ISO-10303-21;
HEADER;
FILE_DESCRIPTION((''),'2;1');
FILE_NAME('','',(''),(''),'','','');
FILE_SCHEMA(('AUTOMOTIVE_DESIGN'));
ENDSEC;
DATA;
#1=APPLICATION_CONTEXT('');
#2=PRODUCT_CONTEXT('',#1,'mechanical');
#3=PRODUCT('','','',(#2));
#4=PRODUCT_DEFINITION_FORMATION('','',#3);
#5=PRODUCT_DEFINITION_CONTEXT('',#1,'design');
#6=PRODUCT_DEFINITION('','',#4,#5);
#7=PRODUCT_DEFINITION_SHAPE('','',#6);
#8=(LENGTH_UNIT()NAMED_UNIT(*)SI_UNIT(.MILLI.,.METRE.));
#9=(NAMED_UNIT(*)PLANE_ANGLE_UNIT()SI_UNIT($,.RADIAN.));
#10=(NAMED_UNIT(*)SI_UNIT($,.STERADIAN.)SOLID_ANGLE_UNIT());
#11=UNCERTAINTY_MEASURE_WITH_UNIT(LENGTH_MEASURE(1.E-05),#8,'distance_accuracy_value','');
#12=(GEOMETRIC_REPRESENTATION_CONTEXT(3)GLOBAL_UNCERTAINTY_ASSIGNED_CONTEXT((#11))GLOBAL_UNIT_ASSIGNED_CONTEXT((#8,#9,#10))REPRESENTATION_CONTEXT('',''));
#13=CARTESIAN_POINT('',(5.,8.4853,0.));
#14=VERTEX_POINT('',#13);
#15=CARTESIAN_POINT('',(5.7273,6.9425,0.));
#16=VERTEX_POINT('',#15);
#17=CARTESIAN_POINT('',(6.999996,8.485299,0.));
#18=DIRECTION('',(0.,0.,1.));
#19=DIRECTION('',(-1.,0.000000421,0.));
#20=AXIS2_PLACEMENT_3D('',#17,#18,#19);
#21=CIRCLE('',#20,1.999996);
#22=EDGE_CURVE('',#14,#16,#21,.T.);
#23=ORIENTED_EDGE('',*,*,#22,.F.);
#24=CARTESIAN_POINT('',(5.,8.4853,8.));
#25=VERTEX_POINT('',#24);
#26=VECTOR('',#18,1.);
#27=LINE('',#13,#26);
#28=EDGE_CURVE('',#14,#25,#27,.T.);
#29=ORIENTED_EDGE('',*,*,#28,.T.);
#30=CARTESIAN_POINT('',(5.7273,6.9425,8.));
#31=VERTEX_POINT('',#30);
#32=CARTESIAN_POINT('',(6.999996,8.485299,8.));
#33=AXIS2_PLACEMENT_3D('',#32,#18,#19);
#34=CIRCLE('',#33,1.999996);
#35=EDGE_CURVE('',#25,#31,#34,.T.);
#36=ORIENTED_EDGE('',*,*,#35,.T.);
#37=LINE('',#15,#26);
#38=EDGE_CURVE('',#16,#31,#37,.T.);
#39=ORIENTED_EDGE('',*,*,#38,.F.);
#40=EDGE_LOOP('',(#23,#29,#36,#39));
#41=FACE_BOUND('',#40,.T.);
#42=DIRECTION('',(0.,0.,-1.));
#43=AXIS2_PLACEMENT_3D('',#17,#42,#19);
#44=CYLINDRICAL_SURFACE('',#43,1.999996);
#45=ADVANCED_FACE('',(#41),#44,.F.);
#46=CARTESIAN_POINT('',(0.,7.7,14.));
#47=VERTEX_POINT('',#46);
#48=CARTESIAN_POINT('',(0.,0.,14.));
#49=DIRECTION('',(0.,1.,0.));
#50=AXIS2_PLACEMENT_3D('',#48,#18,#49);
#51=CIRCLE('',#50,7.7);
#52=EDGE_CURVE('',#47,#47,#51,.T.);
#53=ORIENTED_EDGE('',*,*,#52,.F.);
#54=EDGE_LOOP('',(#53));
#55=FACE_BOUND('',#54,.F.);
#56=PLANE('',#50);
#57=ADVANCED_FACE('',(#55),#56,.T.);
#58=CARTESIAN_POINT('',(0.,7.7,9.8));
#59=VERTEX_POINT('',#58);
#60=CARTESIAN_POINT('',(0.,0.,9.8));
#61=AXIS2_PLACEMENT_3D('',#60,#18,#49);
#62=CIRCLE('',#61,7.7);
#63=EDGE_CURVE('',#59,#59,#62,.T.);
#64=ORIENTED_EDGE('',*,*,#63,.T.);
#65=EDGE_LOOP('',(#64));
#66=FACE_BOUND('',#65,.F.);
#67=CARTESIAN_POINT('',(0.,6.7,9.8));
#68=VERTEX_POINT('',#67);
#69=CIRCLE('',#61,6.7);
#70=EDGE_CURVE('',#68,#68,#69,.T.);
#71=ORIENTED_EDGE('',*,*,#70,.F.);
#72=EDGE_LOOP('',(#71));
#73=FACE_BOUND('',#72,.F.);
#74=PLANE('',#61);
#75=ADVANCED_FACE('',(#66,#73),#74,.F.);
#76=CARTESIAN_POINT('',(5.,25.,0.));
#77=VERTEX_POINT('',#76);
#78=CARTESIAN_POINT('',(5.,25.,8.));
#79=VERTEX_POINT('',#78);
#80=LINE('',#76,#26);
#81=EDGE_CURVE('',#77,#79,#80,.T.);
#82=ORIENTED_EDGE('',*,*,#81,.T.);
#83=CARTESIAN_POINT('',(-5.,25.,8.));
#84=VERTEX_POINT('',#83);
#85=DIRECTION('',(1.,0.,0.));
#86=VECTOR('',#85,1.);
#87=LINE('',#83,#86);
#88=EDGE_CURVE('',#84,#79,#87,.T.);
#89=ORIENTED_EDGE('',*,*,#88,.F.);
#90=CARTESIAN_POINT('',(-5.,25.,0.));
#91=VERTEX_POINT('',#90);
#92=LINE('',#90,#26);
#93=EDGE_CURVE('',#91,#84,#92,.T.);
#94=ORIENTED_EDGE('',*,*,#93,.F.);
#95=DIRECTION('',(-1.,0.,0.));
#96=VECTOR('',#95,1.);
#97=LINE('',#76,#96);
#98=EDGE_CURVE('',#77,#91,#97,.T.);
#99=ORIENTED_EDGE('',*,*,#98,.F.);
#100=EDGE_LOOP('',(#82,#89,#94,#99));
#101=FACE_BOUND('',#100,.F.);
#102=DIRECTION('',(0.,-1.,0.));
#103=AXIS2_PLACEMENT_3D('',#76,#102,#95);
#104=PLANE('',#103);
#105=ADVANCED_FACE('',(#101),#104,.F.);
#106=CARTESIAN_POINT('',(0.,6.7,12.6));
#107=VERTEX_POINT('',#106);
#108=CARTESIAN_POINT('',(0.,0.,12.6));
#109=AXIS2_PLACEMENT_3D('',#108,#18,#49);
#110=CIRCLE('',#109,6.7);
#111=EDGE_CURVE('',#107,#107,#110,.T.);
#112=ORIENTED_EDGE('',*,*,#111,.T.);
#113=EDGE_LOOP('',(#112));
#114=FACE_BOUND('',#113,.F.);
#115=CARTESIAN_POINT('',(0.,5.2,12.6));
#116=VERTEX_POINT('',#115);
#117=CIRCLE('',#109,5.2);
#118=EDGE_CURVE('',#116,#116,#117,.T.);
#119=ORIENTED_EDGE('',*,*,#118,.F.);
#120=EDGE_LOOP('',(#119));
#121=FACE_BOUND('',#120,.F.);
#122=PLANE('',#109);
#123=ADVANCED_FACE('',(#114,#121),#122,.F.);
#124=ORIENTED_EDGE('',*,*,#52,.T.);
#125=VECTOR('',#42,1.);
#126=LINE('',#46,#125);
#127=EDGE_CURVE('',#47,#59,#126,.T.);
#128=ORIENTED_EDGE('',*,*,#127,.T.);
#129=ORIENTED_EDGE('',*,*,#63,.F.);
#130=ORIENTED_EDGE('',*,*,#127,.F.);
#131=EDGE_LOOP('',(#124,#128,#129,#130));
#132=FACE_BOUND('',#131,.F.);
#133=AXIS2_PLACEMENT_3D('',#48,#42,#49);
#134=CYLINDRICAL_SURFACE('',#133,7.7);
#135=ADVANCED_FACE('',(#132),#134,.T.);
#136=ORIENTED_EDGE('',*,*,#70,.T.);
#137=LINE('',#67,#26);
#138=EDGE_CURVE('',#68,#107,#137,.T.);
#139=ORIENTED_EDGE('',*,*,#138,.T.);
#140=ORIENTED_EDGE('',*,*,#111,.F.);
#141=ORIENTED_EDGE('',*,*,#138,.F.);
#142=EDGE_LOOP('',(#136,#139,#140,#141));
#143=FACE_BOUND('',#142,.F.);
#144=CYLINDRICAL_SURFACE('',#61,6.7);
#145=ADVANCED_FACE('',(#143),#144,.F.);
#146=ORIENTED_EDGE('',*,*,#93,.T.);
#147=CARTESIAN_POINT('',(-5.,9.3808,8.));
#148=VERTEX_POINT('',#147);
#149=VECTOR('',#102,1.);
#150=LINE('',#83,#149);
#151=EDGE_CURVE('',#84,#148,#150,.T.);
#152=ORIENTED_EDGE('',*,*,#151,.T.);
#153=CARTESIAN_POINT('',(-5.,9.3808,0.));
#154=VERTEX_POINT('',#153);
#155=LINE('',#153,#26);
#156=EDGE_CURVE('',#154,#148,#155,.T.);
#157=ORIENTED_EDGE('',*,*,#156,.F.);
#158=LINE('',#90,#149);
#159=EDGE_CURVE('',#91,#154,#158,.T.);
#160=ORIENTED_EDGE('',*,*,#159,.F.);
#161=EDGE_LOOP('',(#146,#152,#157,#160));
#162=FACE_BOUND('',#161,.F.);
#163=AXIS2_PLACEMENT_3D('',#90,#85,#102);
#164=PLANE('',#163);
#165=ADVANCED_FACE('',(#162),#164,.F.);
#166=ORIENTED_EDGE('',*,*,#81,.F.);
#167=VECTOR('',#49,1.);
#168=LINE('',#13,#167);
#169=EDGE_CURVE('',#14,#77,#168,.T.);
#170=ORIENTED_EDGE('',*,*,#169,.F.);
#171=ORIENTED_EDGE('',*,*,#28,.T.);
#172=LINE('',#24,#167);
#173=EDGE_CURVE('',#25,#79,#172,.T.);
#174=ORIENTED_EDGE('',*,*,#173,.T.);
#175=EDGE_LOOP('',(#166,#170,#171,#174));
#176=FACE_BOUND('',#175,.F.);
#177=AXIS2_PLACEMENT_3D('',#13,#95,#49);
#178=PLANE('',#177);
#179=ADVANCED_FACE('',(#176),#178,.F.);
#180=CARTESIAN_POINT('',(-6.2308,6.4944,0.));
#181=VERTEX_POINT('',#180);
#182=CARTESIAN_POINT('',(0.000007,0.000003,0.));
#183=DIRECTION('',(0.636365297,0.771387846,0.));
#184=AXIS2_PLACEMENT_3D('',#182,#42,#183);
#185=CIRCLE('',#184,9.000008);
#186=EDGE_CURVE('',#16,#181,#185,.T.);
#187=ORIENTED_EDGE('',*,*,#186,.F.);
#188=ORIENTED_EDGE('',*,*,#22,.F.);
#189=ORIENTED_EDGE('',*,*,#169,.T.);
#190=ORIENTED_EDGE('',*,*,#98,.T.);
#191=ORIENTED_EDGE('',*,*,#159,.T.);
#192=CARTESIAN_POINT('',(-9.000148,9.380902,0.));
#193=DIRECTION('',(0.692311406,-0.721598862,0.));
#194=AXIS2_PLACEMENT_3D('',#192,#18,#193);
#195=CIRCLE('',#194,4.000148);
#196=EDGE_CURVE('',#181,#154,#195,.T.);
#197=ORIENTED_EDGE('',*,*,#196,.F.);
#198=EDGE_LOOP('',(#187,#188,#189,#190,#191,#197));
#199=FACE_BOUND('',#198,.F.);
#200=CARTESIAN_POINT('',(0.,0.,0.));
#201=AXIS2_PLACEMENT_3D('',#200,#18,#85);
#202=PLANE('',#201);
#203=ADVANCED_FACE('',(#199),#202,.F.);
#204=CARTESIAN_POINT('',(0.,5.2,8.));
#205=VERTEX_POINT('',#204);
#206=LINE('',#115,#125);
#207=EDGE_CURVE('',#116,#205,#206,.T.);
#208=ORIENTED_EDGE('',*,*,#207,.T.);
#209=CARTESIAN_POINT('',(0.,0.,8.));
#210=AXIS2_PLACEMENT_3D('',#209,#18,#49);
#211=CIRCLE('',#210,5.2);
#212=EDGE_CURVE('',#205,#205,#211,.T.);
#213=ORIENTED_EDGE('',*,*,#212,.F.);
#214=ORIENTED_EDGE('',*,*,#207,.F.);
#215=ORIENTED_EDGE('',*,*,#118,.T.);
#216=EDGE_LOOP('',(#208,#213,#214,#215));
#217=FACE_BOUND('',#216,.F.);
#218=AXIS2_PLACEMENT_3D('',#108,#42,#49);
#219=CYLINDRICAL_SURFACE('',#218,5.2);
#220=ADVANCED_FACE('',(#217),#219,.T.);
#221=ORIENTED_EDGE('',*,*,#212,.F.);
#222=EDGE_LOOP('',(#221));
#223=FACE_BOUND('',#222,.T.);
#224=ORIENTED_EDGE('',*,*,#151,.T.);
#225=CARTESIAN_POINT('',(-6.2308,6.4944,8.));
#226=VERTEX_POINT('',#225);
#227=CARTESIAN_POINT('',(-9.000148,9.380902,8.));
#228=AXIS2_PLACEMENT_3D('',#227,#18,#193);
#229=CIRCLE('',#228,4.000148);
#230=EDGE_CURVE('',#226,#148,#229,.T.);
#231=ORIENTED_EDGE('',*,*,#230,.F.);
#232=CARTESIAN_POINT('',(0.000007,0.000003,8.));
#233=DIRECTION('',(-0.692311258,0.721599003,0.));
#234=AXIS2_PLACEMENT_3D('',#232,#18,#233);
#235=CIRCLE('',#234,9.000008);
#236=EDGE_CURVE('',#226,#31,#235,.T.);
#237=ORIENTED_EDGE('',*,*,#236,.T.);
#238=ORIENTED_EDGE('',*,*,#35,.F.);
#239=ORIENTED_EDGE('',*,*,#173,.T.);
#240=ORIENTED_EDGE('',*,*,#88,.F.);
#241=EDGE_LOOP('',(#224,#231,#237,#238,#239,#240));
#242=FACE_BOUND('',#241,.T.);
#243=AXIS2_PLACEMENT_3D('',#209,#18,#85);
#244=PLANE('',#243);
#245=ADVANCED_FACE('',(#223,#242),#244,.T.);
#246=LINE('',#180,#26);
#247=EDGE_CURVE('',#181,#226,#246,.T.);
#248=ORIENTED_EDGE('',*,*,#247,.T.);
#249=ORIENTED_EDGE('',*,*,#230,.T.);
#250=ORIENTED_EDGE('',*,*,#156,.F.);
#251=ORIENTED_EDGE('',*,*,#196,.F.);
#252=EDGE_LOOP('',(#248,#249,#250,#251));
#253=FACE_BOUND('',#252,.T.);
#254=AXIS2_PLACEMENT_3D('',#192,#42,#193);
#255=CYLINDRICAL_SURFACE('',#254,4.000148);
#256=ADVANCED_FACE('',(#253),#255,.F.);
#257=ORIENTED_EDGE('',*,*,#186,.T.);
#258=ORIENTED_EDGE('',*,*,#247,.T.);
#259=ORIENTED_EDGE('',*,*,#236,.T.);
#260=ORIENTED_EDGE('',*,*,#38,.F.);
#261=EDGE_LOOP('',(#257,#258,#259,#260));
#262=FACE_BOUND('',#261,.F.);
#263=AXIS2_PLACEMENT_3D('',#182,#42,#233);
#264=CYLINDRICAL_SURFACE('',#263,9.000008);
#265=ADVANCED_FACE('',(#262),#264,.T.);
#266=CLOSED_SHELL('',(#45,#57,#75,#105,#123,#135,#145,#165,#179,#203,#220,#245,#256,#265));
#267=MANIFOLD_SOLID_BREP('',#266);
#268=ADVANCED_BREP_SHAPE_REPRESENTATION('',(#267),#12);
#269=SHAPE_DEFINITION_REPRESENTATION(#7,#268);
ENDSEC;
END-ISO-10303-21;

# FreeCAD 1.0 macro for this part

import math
import FreeCAD as App
import Part
import Sketcher
from FreeCAD import Vector


def add_polygon(sketch, points):
    """Adds a closed chain of lines whose ends are joined by coincident constraints."""
    first, n = sketch.GeometryCount, len(points)
    for a, b in zip(points, points[1:] + points[:1]):
        sketch.addGeometry(Part.LineSegment(App.Vector(*a, 0), App.Vector(*b, 0)), False)
    for i in range(n):
        sketch.addConstraint(Sketcher.Constraint("Coincident", first + i, 2, first + (i + 1) % n, 1))

doc = App.newDocument("Part")
body = doc.addObject("PartDesign::Body", "Body")

sketch1 = doc.addObject("Sketcher::SketchObject", "Sketch")
body.addObject(sketch1)
sketch1.AttachmentSupport = (doc.XY_Plane, [""])
sketch1.MapMode = "FlatFace"
sketch1.addGeometry(Part.LineSegment(Vector(5, 8.5, 0), Vector(5, 25, 0)), False)
sketch1.addGeometry(Part.LineSegment(Vector(5, 25, 0), Vector(-5, 25, 0)), False)
sketch1.addGeometry(Part.LineSegment(Vector(-5, 25, 0), Vector(-5, 9.4, 0)), False)
sketch1.addGeometry(Part.ArcOfCircle(Part.Circle(Vector(-9, 9.4, 0), Vector(0, 0, 1), 4), math.radians(-46), math.radians(0)), False)
sketch1.addGeometry(Part.ArcOfCircle(Part.Circle(Vector(0, 0, 0), Vector(0, 0, 1), 9), math.radians(134), math.radians(410)), False)
sketch1.addGeometry(Part.ArcOfCircle(Part.Circle(Vector(7, 8.5, 0), Vector(0, 0, 1), 2), math.radians(180), math.radians(230)), False)
sketch1.addConstraint(Sketcher.Constraint("Coincident", 0, 2, 1, 1))
sketch1.addConstraint(Sketcher.Constraint("Coincident", 1, 2, 2, 1))
sketch1.addConstraint(Sketcher.Constraint("Tangent", 2, 2, 3, 2))
sketch1.addConstraint(Sketcher.Constraint("Tangent", 3, 1, 4, 1))
sketch1.addConstraint(Sketcher.Constraint("Tangent", 4, 2, 5, 2))
sketch1.addConstraint(Sketcher.Constraint("Tangent", 5, 1, 0, 1))
sketch1.addConstraint(Sketcher.Constraint("Vertical", 0))
sketch1.addConstraint(Sketcher.Constraint("Horizontal", 1))
sketch1.addConstraint(Sketcher.Constraint("Vertical", 2))
sketch1.addConstraint(Sketcher.Constraint("Coincident", 4, 3, -1, 1))
sketch1.addConstraint(Sketcher.Constraint("Radius", 3, 4.0))
sketch1.addConstraint(Sketcher.Constraint("Radius", 4, 9.0))
sketch1.addConstraint(Sketcher.Constraint("Radius", 5, 2.0))
sketch1.addConstraint(Sketcher.Constraint("DistanceX", 1, 2, 1, 1, 10.0))
sketch1.addConstraint(Sketcher.Constraint("DistanceX", -1, 1, 0, 2, 5.0))
sketch1.addConstraint(Sketcher.Constraint("DistanceY", -1, 1, 0, 2, 25.0))
pad1 = doc.addObject("PartDesign::Pad", "Pad")
body.addObject(pad1)
pad1.Profile = sketch1
pad1.Length = 8

sketch2 = doc.addObject("Sketcher::SketchObject", "Sketch001")
body.addObject(sketch2)
sketch2.AttachmentSupport = (doc.YZ_Plane, [""])
sketch2.MapMode = "FlatFace"
add_polygon(sketch2, [(0, 8), (5.2, 8), (5.2, 12.6), (6.7, 12.6), (6.7, 9.8), (7.7, 9.8), (7.7, 14), (0, 14)])
sketch2.addConstraint(Sketcher.Constraint("Horizontal", 0))
sketch2.addConstraint(Sketcher.Constraint("Vertical", 1))
sketch2.addConstraint(Sketcher.Constraint("Horizontal", 2))
sketch2.addConstraint(Sketcher.Constraint("Vertical", 3))
sketch2.addConstraint(Sketcher.Constraint("Horizontal", 4))
sketch2.addConstraint(Sketcher.Constraint("Vertical", 5))
sketch2.addConstraint(Sketcher.Constraint("Horizontal", 6))
sketch2.addConstraint(Sketcher.Constraint("Vertical", 7))
sketch2.addConstraint(Sketcher.Constraint("PointOnObject", 6, 2, -2))
sketch2.addConstraint(Sketcher.Constraint("DistanceX", 4, 1, 4, 2, 1.0))
sketch2.addConstraint(Sketcher.Constraint("DistanceY", 7, 2, 7, 1, 6.0))
sketch2.addConstraint(Sketcher.Constraint("DistanceX", 0, 1, 0, 2, 5.2))
sketch2.addConstraint(Sketcher.Constraint("DistanceX", 2, 1, 2, 2, 1.5))
sketch2.addConstraint(Sketcher.Constraint("DistanceY", 3, 2, 3, 1, 2.8))
sketch2.addConstraint(Sketcher.Constraint("DistanceY", 2, 2, 5, 2, 1.4))
sketch2.addConstraint(Sketcher.Constraint("DistanceY", -1, 1, 0, 2, 8.0))
revolution = doc.addObject("PartDesign::Revolution", "Revolution")
body.addObject(revolution)
revolution.Profile = sketch2
revolution.ReferenceAxis = (sketch2, ["V_Axis"])
revolution.Angle = 360

doc.recompute()
